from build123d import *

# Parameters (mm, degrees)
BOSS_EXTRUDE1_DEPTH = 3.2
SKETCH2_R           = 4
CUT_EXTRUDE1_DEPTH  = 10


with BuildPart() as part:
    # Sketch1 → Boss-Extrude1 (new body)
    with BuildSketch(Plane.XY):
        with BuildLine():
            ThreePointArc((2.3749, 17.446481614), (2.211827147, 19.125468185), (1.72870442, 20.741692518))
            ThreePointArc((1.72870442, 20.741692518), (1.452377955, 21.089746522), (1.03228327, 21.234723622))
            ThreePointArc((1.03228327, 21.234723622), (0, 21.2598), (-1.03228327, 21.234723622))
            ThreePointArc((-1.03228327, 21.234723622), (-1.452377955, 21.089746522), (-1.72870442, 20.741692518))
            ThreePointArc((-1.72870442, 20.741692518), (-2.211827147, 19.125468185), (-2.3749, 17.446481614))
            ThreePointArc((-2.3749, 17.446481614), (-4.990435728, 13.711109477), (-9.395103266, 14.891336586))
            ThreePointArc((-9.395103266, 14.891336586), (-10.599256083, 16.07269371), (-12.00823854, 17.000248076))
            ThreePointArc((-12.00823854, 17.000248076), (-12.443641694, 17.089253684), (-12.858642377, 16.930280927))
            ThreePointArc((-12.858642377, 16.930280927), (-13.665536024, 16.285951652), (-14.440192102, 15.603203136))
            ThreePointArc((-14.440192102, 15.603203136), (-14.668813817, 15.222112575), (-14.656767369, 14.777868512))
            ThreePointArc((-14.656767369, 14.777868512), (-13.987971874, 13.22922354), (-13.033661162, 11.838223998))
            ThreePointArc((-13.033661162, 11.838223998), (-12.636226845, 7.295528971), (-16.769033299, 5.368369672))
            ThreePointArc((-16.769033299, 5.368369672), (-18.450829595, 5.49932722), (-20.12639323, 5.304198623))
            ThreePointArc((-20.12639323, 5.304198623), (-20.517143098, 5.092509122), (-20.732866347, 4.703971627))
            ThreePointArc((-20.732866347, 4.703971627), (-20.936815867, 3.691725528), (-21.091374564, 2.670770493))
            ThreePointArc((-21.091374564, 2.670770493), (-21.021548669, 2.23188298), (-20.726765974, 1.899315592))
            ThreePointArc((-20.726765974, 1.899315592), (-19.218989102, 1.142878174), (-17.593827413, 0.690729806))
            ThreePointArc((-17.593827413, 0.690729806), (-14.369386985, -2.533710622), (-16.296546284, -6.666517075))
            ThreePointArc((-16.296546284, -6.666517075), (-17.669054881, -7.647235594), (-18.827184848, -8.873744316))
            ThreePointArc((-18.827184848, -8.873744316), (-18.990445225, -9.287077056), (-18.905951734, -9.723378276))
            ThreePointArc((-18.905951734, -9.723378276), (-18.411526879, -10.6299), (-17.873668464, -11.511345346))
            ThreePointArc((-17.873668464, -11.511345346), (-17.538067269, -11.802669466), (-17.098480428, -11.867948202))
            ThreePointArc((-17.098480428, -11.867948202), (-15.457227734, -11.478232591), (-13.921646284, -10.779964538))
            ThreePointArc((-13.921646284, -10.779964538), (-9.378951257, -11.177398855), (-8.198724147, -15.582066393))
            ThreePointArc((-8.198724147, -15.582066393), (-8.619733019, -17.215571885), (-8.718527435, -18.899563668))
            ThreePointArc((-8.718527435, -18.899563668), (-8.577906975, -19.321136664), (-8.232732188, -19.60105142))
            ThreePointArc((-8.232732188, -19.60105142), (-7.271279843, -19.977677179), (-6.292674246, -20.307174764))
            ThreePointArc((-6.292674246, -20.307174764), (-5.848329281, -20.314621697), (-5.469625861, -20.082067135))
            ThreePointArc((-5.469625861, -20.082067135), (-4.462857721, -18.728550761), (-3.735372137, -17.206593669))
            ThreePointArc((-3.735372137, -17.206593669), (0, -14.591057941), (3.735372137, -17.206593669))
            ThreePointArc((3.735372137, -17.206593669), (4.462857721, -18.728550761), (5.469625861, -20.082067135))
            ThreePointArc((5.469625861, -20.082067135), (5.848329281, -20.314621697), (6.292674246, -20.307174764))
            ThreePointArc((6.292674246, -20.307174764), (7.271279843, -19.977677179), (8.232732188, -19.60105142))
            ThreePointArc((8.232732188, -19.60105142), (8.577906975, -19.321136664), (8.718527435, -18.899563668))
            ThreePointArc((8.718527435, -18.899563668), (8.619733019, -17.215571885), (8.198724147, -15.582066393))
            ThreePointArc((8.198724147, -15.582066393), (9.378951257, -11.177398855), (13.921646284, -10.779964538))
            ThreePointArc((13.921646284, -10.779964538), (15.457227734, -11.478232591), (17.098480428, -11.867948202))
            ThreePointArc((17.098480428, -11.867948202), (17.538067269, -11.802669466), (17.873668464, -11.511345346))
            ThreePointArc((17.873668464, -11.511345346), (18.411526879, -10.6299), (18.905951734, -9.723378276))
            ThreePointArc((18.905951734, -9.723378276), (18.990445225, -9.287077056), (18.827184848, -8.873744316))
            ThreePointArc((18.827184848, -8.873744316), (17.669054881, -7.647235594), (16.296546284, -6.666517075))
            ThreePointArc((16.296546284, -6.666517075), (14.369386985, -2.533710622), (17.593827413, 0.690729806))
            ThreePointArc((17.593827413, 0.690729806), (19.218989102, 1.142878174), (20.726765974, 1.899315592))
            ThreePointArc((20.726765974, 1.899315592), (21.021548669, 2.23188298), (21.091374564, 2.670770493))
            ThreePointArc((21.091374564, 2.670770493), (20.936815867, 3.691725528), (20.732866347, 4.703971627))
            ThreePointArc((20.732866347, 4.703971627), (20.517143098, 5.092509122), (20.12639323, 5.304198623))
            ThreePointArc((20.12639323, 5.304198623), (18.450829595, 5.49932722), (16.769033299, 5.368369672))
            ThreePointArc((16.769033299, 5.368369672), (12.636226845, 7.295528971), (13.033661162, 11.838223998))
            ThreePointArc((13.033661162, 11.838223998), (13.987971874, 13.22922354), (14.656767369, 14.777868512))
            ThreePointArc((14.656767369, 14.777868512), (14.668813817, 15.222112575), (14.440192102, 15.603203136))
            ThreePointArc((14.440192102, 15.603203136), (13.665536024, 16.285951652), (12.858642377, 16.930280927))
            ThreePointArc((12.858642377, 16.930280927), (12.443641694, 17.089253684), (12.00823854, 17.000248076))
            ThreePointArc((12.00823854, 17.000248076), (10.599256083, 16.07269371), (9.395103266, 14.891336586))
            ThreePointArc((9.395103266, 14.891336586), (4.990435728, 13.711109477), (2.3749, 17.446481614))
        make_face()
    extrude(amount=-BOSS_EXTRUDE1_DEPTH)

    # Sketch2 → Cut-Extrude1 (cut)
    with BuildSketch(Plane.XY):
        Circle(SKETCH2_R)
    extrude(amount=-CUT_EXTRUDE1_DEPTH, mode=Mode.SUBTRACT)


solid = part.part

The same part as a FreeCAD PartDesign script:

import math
import FreeCAD as App
import Part
import Sketcher

V = App.Vector
Q = App.Units.Quantity

doc = App.newDocument("Part")
body = doc.addObject("PartDesign::Body", "Body")

sketch1 = doc.addObject("Sketcher::SketchObject", "Sketch")
body.addObject(sketch1)
sketch1.AttachmentSupport = (doc.XY_Plane, [""])
sketch1.MapMode = "FlatFace"
sketch1.addGeometry([
    Part.ArcOfCircle(Part.Circle(V(-6.4, 17.4, 0), V(0, 0, 1), 8.7), math.radians(0), math.radians(22)),
    Part.ArcOfCircle(Part.Circle(V(1, 20.4, 0), V(0, 0, 1), 0.8), math.radians(22), math.radians(87)),
    Part.ArcOfCircle(Part.Circle(V(0, 0, 0), V(0, 0, 1), 21.3), math.radians(87.22), math.radians(92.78)),
    Part.ArcOfCircle(Part.Circle(V(-1, 20.4, 0), V(0, 0, 1), 0.8), math.radians(93), math.radians(158)),
    Part.ArcOfCircle(Part.Circle(V(6.4, 17.4, 0), V(0, 0, 1), 8.7), math.radians(158), math.radians(180)),
    Part.ArcOfCircle(Part.Circle(V(-6.3, 17.4, 0), V(0, 0, 1), 4), math.radians(-140), math.radians(0)),
    Part.ArcOfCircle(Part.Circle(V(-16.1, 9.3, 0), V(0, 0, 1), 8.7), math.radians(40), math.radians(62)),
    Part.ArcOfCircle(Part.Circle(V(-12.4, 16.3, 0), V(0, 0, 1), 0.8), math.radians(62), math.radians(127)),
    Part.ArcOfCircle(Part.Circle(V(0, 0, 0), V(0, 0, 1), 21.3), math.radians(127.22), math.radians(132.78)),
    Part.ArcOfCircle(Part.Circle(V(-13.9, 15, 0), V(0, 0, 1), 0.8), math.radians(133), math.radians(198)),
    Part.ArcOfCircle(Part.Circle(V(-6.3, 17.4, 0), V(0, 0, 1), 8.7), math.radians(-162), math.radians(-140)),
    Part.ArcOfCircle(Part.Circle(V(-16.1, 9.3, 0), V(0, 0, 1), 4), math.radians(-100), math.radians(40)),
    Part.ArcOfCircle(Part.Circle(V(-18.3, -3.2, 0), V(0, 0, 1), 8.7), math.radians(80), math.radians(102)),
    Part.ArcOfCircle(Part.Circle(V(-20, 4.5, 0), V(0, 0, 1), 0.8), math.radians(102), math.radians(167)),
    Part.ArcOfCircle(Part.Circle(V(0, 0, 0), V(0, 0, 1), 21.3), math.radians(167.22), math.radians(172.78)),
    Part.ArcOfCircle(Part.Circle(V(-20.3, 2.6, 0), V(0, 0, 1), 0.8), math.radians(173), math.radians(238)),
    Part.ArcOfCircle(Part.Circle(V(-16.1, 9.3, 0), V(0, 0, 1), 8.7), math.radians(-122), math.radians(-100)),
    Part.ArcOfCircle(Part.Circle(V(-18.3, -3.2, 0), V(0, 0, 1), 4), math.radians(-60), math.radians(80)),
    Part.ArcOfCircle(Part.Circle(V(-11.9, -14.2, 0), V(0, 0, 1), 8.7), math.radians(120), math.radians(142)),
    Part.ArcOfCircle(Part.Circle(V(-18.2, -9.4, 0), V(0, 0, 1), 0.8), math.radians(142), math.radians(207)),
    Part.ArcOfCircle(Part.Circle(V(0, 0, 0), V(0, 0, 1), 21.3), math.radians(-152.78), math.radians(-147.22)),
    Part.ArcOfCircle(Part.Circle(V(-17.2, -11.1, 0), V(0, 0, 1), 0.8), math.radians(-147), math.radians(-82)),
    Part.ArcOfCircle(Part.Circle(V(-18.3, -3.2, 0), V(0, 0, 1), 8.7), math.radians(-82), math.radians(-60)),
    Part.ArcOfCircle(Part.Circle(V(-11.9, -14.2, 0), V(0, 0, 1), 4), math.radians(-20), math.radians(120)),
    Part.ArcOfCircle(Part.Circle(V(0, -18.6, 0), V(0, 0, 1), 8.7), math.radians(160), math.radians(182)),
    Part.ArcOfCircle(Part.Circle(V(-7.9, -18.9, 0), V(0, 0, 1), 0.8), math.radians(-178), math.radians(-113)),
    Part.ArcOfCircle(Part.Circle(V(0, 0, 0), V(0, 0, 1), 21.3), math.radians(-112.78), math.radians(-107.22)),
    Part.ArcOfCircle(Part.Circle(V(-6.1, -19.5, 0), V(0, 0, 1), 0.8), math.radians(-107), math.radians(-42)),
    Part.ArcOfCircle(Part.Circle(V(-11.9, -14.2, 0), V(0, 0, 1), 8.7), math.radians(-42), math.radians(-20)),
    Part.ArcOfCircle(Part.Circle(V(0, -18.6, 0), V(0, 0, 1), 4), math.radians(20), math.radians(160)),
    Part.ArcOfCircle(Part.Circle(V(11.9, -14.2, 0), V(0, 0, 1), 8.7), math.radians(-160), math.radians(-138)),
    Part.ArcOfCircle(Part.Circle(V(6.1, -19.5, 0), V(0, 0, 1), 0.8), math.radians(-138), math.radians(-73)),
    Part.ArcOfCircle(Part.Circle(V(0, 0, 0), V(0, 0, 1), 21.3), math.radians(-72.78), math.radians(-67.22)),
    Part.ArcOfCircle(Part.Circle(V(7.9, -18.9, 0), V(0, 0, 1), 0.8), math.radians(-67), math.radians(-2)),
    Part.ArcOfCircle(Part.Circle(V(0, -18.6, 0), V(0, 0, 1), 8.7), math.radians(-2), math.radians(20)),
    Part.ArcOfCircle(Part.Circle(V(11.9, -14.2, 0), V(0, 0, 1), 4), math.radians(60), math.radians(200)),
    Part.ArcOfCircle(Part.Circle(V(18.3, -3.2, 0), V(0, 0, 1), 8.7), math.radians(-120), math.radians(-98)),
    Part.ArcOfCircle(Part.Circle(V(17.2, -11.1, 0), V(0, 0, 1), 0.8), math.radians(-98), math.radians(-33)),
    Part.ArcOfCircle(Part.Circle(V(0, 0, 0), V(0, 0, 1), 21.3), math.radians(-32.78), math.radians(-27.22)),
    Part.ArcOfCircle(Part.Circle(V(18.2, -9.4, 0), V(0, 0, 1), 0.8), math.radians(-27), math.radians(38)),
    Part.ArcOfCircle(Part.Circle(V(11.9, -14.2, 0), V(0, 0, 1), 8.7), math.radians(38), math.radians(60)),
    Part.ArcOfCircle(Part.Circle(V(18.3, -3.2, 0), V(0, 0, 1), 4), math.radians(100), math.radians(240)),
    Part.ArcOfCircle(Part.Circle(V(16.1, 9.3, 0), V(0, 0, 1), 8.7), math.radians(-80), math.radians(-58)),
    Part.ArcOfCircle(Part.Circle(V(20.3, 2.6, 0), V(0, 0, 1), 0.8), math.radians(-58), math.radians(7)),
    Part.ArcOfCircle(Part.Circle(V(0, 0, 0), V(0, 0, 1), 21.3), math.radians(7.22), math.radians(12.78)),
    Part.ArcOfCircle(Part.Circle(V(20, 4.5, 0), V(0, 0, 1), 0.8), math.radians(13), math.radians(78)),
    Part.ArcOfCircle(Part.Circle(V(18.3, -3.2, 0), V(0, 0, 1), 8.7), math.radians(78), math.radians(100)),
    Part.ArcOfCircle(Part.Circle(V(16.1, 9.3, 0), V(0, 0, 1), 4), math.radians(140), math.radians(280)),
    Part.ArcOfCircle(Part.Circle(V(6.3, 17.4, 0), V(0, 0, 1), 8.7), math.radians(-40), math.radians(-18)),
    Part.ArcOfCircle(Part.Circle(V(13.9, 15, 0), V(0, 0, 1), 0.8), math.radians(-18), math.radians(47)),
    Part.ArcOfCircle(Part.Circle(V(0, 0, 0), V(0, 0, 1), 21.3), math.radians(47.22), math.radians(52.78)),
    Part.ArcOfCircle(Part.Circle(V(12.4, 16.3, 0), V(0, 0, 1), 0.8), math.radians(53), math.radians(118)),
    Part.ArcOfCircle(Part.Circle(V(16.1, 9.3, 0), V(0, 0, 1), 8.7), math.radians(118), math.radians(140)),
    Part.ArcOfCircle(Part.Circle(V(6.3, 17.4, 0), V(0, 0, 1), 4), math.radians(180), math.radians(320)),
], False)
sketch1.addConstraint([
    Sketcher.Constraint("Tangent", 0, 2, 1, 1),
    Sketcher.Constraint("Tangent", 1, 2, 2, 1),
    Sketcher.Constraint("Tangent", 2, 2, 3, 1),
    Sketcher.Constraint("Tangent", 3, 2, 4, 1),
    Sketcher.Constraint("Tangent", 4, 2, 5, 2),
    Sketcher.Constraint("Tangent", 5, 1, 6, 1),
    Sketcher.Constraint("Tangent", 6, 2, 7, 1),
    Sketcher.Constraint("Tangent", 7, 2, 8, 1),
    Sketcher.Constraint("Tangent", 8, 2, 9, 1),
    Sketcher.Constraint("Tangent", 9, 2, 10, 1),
    Sketcher.Constraint("Tangent", 10, 2, 11, 2),
    Sketcher.Constraint("Tangent", 11, 1, 12, 1),
    Sketcher.Constraint("Tangent", 12, 2, 13, 1),
    Sketcher.Constraint("Tangent", 13, 2, 14, 1),
    Sketcher.Constraint("Tangent", 14, 2, 15, 1),
    Sketcher.Constraint("Tangent", 15, 2, 16, 1),
    Sketcher.Constraint("Tangent", 16, 2, 17, 2),
    Sketcher.Constraint("Tangent", 17, 1, 18, 1),
    Sketcher.Constraint("Tangent", 18, 2, 19, 1),
    Sketcher.Constraint("Tangent", 19, 2, 20, 1),
    Sketcher.Constraint("Tangent", 20, 2, 21, 1),
    Sketcher.Constraint("Tangent", 21, 2, 22, 1),
    Sketcher.Constraint("Tangent", 22, 2, 23, 2),
    Sketcher.Constraint("Tangent", 23, 1, 24, 1),
    Sketcher.Constraint("Tangent", 24, 2, 25, 1),
    Sketcher.Constraint("Tangent", 25, 2, 26, 1),
    Sketcher.Constraint("Tangent", 26, 2, 27, 1),
    Sketcher.Constraint("Tangent", 27, 2, 28, 1),
    Sketcher.Constraint("Tangent", 28, 2, 29, 2),
    Sketcher.Constraint("Tangent", 29, 1, 30, 1),
    Sketcher.Constraint("Tangent", 30, 2, 31, 1),
    Sketcher.Constraint("Tangent", 31, 2, 32, 1),
    Sketcher.Constraint("Tangent", 32, 2, 33, 1),
    Sketcher.Constraint("Tangent", 33, 2, 34, 1),
    Sketcher.Constraint("Tangent", 34, 2, 35, 2),
    Sketcher.Constraint("Tangent", 35, 1, 36, 1),
    Sketcher.Constraint("Tangent", 36, 2, 37, 1),
    Sketcher.Constraint("Tangent", 37, 2, 38, 1),
    Sketcher.Constraint("Tangent", 38, 2, 39, 1),
    Sketcher.Constraint("Tangent", 39, 2, 40, 1),
    Sketcher.Constraint("Tangent", 40, 2, 41, 2),
    Sketcher.Constraint("Tangent", 41, 1, 42, 1),
    Sketcher.Constraint("Tangent", 42, 2, 43, 1),
    Sketcher.Constraint("Tangent", 43, 2, 44, 1),
    Sketcher.Constraint("Tangent", 44, 2, 45, 1),
    Sketcher.Constraint("Tangent", 45, 2, 46, 1),
    Sketcher.Constraint("Tangent", 46, 2, 47, 2),
    Sketcher.Constraint("Tangent", 47, 1, 48, 1),
    Sketcher.Constraint("Tangent", 48, 2, 49, 1),
    Sketcher.Constraint("Tangent", 49, 2, 50, 1),
    Sketcher.Constraint("Tangent", 50, 2, 51, 1),
    Sketcher.Constraint("Tangent", 51, 2, 52, 1),
    Sketcher.Constraint("Tangent", 52, 2, 53, 2),
    Sketcher.Constraint("Tangent", 53, 1, 0, 1),
    Sketcher.Constraint("Coincident", 2, 3, -1, 1),
    Sketcher.Constraint("Coincident", 8, 3, -1, 1),
    Sketcher.Constraint("Coincident", 14, 3, -1, 1),
    Sketcher.Constraint("Coincident", 20, 3, -1, 1),
    Sketcher.Constraint("Coincident", 26, 3, -1, 1),
    Sketcher.Constraint("Coincident", 32, 3, -1, 1),
    Sketcher.Constraint("Coincident", 38, 3, -1, 1),
    Sketcher.Constraint("Coincident", 44, 3, -1, 1),
    Sketcher.Constraint("Coincident", 50, 3, -1, 1),
    Sketcher.Constraint("Coincident", 5, 3, 0, 3),
    Sketcher.Constraint("Coincident", 10, 3, 0, 3),
    Sketcher.Constraint("Coincident", 11, 3, 6, 3),
    Sketcher.Constraint("Coincident", 16, 3, 6, 3),
    Sketcher.Constraint("Coincident", 17, 3, 12, 3),
    Sketcher.Constraint("Coincident", 22, 3, 12, 3),
    Sketcher.Constraint("Coincident", 23, 3, 18, 3),
    Sketcher.Constraint("Coincident", 28, 3, 18, 3),
    Sketcher.Constraint("Coincident", 29, 3, 24, 3),
    Sketcher.Constraint("Coincident", 34, 3, 24, 3),
    Sketcher.Constraint("Coincident", 35, 3, 30, 3),
    Sketcher.Constraint("Coincident", 40, 3, 30, 3),
    Sketcher.Constraint("Coincident", 41, 3, 36, 3),
    Sketcher.Constraint("Coincident", 46, 3, 36, 3),
    Sketcher.Constraint("Coincident", 47, 3, 42, 3),
    Sketcher.Constraint("Coincident", 48, 3, 4, 3),
    Sketcher.Constraint("Coincident", 52, 3, 42, 3),
    Sketcher.Constraint("Coincident", 53, 3, 4, 3),
    Sketcher.Constraint("Equal", 1, 3),
    Sketcher.Constraint("Equal", 0, 4),
    Sketcher.Constraint("Equal", 4, 6),
    Sketcher.Constraint("Equal", 3, 7),
    Sketcher.Constraint("Equal", 2, 8),
    Sketcher.Constraint("Equal", 7, 9),
    Sketcher.Constraint("Equal", 6, 10),
    Sketcher.Constraint("Equal", 10, 12),
    Sketcher.Constraint("Equal", 9, 13),
    Sketcher.Constraint("Equal", 8, 14),
    Sketcher.Constraint("Equal", 13, 15),
    Sketcher.Constraint("Equal", 12, 16),
    Sketcher.Constraint("Equal", 16, 18),
    Sketcher.Constraint("Equal", 15, 19),
    Sketcher.Constraint("Equal", 14, 20),
    Sketcher.Constraint("Equal", 19, 21),
    Sketcher.Constraint("Equal", 18, 22),
    Sketcher.Constraint("Equal", 22, 24),
    Sketcher.Constraint("Equal", 21, 25),
    Sketcher.Constraint("Equal", 20, 26),
    Sketcher.Constraint("Equal", 25, 27),
    Sketcher.Constraint("Equal", 24, 28),
    Sketcher.Constraint("Equal", 28, 30),
    Sketcher.Constraint("Equal", 27, 31),
    Sketcher.Constraint("Equal", 26, 32),
    Sketcher.Constraint("Equal", 31, 33),
    Sketcher.Constraint("Equal", 30, 34),
    Sketcher.Constraint("Equal", 34, 36),
    Sketcher.Constraint("Equal", 33, 37),
    Sketcher.Constraint("Equal", 32, 38),
    Sketcher.Constraint("Equal", 37, 39),
    Sketcher.Constraint("Equal", 36, 40),
    Sketcher.Constraint("Equal", 40, 42),
    Sketcher.Constraint("Equal", 39, 43),
    Sketcher.Constraint("Equal", 38, 44),
    Sketcher.Constraint("Equal", 43, 45),
    Sketcher.Constraint("Equal", 42, 46),
    Sketcher.Constraint("Equal", 46, 48),
    Sketcher.Constraint("Equal", 45, 49),
    Sketcher.Constraint("Equal", 44, 50),
    Sketcher.Constraint("Equal", 49, 51),
    Sketcher.Constraint("Symmetric", 0, 3, 4, 3, -2),
    Sketcher.Constraint("Symmetric", 18, 3, 30, 3, -2),
    Sketcher.Constraint("Horizontal", 22, 3, 36, 3),
    Sketcher.Constraint("Radius", 1, Q("0.03125 in")),
    Sketcher.Constraint("Radius", 2, Q("0.837 in")),
    Sketcher.Constraint("Radius", 0, Q("0.3435 in")),
    Sketcher.Constraint("Radius", 5, Q("0.1565 in")),
    Sketcher.Constraint("DistanceY", -1, 1, 12, 2, 5.304199),
    Sketcher.Constraint("DistanceY", -1, 1, 0, 3, 17.446482),
    Sketcher.Constraint("DistanceY", -1, 1, 6, 3, 9.283079),
    Sketcher.Constraint("DistanceY", 19, 3, -1, 1, 9.360349),
])
pad1 = doc.addObject("PartDesign::Pad", "Pad")
body.addObject(pad1)
pad1.Profile = sketch1
pad1.Length = 3.2
pad1.Reversed = True

sketch2 = doc.addObject("Sketcher::SketchObject", "Sketch001")
body.addObject(sketch2)
sketch2.AttachmentSupport = (doc.XY_Plane, [""])
sketch2.MapMode = "FlatFace"
sketch2.addGeometry(Part.Circle(V(0, 0, 0), V(0, 0, 1), 4), False)
sketch2.addConstraint([
    Sketcher.Constraint("Coincident", 0, 3, -1, 1),
    Sketcher.Constraint("Diameter", 0, 8.0),
])
pocket1 = doc.addObject("PartDesign::Pocket", "Pocket")
body.addObject(pocket1)
pocket1.Profile = sketch2
pocket1.Length = 10

doc.recompute()
